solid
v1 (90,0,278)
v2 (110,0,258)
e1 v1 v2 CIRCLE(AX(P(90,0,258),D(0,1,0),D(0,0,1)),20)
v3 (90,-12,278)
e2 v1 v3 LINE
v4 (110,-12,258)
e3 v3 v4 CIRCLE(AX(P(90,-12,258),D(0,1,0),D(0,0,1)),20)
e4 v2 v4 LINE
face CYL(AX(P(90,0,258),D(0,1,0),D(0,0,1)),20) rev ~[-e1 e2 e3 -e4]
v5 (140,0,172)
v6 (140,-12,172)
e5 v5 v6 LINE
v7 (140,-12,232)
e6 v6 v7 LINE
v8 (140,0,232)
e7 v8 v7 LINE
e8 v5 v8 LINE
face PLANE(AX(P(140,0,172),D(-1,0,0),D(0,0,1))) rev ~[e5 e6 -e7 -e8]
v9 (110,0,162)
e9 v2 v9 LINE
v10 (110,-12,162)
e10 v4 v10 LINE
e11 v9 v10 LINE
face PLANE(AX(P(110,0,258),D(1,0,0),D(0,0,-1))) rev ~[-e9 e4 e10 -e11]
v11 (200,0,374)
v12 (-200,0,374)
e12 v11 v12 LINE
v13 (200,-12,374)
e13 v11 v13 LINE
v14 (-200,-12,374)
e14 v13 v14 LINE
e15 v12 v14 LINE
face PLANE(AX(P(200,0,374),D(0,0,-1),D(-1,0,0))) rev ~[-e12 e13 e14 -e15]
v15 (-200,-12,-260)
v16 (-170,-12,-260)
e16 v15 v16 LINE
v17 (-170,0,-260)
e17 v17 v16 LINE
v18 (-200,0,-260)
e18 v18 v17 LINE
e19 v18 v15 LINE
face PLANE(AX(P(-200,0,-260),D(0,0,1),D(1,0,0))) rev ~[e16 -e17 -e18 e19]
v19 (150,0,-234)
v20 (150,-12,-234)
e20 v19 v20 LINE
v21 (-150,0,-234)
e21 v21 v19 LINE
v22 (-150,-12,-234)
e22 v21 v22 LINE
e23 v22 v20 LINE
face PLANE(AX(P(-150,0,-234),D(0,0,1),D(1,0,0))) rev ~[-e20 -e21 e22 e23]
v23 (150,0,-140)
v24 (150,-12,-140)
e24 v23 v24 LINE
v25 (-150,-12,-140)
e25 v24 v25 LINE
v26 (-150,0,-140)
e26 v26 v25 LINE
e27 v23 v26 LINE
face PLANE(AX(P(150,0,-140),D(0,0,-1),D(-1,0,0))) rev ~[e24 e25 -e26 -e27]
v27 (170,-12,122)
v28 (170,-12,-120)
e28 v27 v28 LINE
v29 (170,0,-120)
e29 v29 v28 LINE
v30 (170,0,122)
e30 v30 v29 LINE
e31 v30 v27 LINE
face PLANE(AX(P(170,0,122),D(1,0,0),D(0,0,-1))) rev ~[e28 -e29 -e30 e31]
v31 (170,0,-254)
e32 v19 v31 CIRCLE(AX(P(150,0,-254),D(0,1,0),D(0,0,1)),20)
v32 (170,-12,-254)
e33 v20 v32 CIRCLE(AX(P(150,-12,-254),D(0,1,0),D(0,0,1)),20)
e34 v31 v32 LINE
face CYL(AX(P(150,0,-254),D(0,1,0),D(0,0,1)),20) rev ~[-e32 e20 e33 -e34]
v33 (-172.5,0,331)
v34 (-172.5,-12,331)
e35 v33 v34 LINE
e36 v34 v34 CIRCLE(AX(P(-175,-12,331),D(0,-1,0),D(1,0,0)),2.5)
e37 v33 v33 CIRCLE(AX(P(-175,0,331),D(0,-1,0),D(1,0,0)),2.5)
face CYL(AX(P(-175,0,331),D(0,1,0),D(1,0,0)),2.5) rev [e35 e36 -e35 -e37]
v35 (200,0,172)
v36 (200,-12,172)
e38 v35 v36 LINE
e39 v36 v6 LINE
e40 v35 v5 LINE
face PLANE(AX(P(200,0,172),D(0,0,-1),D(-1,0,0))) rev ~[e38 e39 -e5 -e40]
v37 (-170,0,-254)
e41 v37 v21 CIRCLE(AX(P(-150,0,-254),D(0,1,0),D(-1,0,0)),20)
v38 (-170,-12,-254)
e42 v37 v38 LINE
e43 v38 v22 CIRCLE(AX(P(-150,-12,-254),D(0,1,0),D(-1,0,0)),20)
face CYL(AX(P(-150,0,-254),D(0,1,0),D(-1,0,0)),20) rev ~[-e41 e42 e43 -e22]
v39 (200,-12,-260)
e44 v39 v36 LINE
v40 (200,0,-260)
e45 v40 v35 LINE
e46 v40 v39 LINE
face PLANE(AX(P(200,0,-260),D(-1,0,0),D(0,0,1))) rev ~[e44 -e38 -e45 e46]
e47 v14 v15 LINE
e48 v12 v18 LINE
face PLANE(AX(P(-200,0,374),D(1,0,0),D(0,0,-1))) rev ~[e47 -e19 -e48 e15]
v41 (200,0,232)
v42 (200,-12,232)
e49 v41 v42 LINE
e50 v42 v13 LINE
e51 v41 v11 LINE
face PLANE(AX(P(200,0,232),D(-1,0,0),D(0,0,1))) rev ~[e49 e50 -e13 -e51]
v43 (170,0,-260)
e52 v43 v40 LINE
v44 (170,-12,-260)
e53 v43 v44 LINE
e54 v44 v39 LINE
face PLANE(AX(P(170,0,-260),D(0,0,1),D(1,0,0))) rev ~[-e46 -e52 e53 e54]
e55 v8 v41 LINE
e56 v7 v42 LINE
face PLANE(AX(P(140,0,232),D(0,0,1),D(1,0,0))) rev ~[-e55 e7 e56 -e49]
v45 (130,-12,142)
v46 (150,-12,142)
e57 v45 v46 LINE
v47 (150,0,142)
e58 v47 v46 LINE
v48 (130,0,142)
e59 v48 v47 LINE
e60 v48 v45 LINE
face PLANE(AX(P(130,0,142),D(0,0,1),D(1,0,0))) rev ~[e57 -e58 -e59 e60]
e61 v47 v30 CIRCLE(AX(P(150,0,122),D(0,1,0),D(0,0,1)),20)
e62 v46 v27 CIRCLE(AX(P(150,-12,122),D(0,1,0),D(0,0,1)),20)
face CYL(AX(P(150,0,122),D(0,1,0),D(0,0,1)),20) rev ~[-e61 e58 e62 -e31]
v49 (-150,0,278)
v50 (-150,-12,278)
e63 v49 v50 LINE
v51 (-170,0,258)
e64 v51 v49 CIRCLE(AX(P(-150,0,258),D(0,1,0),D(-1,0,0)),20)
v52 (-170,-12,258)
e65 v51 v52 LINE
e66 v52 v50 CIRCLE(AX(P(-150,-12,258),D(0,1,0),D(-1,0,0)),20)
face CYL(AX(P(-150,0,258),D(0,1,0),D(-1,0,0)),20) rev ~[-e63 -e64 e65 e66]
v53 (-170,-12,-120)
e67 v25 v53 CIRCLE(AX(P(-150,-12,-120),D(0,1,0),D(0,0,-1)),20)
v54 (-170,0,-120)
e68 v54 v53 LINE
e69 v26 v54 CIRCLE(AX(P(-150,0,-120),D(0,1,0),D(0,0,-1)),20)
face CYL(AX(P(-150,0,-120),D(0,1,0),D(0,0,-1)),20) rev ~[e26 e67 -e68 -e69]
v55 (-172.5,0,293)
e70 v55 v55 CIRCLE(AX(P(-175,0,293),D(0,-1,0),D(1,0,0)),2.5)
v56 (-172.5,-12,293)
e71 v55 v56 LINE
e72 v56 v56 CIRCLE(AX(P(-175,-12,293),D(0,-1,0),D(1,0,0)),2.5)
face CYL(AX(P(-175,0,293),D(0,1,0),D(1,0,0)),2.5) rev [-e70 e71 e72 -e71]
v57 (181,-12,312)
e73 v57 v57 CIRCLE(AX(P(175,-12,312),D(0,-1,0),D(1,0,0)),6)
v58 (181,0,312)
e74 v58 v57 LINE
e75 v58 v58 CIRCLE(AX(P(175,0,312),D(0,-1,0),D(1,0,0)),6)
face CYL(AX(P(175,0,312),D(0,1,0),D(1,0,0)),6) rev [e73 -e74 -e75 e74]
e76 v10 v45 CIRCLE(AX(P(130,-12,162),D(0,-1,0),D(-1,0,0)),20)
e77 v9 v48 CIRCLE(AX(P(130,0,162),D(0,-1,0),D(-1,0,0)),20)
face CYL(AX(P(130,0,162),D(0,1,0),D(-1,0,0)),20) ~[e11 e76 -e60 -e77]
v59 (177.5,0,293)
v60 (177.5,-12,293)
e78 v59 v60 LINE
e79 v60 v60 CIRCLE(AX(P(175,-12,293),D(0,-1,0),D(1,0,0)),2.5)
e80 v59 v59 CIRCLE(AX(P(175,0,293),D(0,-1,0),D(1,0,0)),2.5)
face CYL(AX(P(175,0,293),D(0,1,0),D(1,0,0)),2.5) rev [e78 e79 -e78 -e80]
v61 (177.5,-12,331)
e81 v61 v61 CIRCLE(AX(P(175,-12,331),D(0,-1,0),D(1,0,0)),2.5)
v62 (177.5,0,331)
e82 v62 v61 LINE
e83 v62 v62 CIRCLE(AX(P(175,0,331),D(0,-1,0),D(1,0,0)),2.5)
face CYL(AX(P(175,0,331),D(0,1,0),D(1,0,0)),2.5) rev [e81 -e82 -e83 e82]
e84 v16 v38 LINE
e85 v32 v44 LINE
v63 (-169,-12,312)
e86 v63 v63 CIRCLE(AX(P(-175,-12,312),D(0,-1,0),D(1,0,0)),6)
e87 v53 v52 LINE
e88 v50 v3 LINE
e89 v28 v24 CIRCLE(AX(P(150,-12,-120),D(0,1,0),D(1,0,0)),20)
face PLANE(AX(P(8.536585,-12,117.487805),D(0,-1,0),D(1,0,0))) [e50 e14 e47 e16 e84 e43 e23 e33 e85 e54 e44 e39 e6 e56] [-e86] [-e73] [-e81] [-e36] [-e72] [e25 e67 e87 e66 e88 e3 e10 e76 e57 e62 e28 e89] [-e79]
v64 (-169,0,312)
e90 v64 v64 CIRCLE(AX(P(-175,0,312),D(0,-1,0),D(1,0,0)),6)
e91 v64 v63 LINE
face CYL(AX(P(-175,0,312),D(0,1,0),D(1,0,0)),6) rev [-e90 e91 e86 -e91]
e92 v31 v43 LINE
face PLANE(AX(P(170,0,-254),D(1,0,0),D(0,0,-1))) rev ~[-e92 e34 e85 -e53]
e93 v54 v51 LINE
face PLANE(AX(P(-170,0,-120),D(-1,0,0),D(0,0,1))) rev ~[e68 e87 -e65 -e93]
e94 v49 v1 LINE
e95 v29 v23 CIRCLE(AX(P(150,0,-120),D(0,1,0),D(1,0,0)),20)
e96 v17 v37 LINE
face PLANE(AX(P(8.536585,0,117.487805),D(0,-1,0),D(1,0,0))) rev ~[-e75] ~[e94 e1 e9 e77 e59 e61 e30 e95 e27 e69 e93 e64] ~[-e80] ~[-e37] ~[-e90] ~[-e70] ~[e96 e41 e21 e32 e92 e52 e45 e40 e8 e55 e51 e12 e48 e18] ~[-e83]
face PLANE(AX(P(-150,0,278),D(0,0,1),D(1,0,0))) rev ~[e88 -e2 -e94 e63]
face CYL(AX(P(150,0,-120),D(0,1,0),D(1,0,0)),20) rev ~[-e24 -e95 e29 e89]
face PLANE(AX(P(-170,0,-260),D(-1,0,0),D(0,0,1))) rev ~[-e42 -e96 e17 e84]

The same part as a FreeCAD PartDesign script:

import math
import FreeCAD as App
import Part
import Sketcher

doc = App.newDocument("Part")
params = doc.addObject("Spreadsheet::Sheet", "Params")
for row, (alias, value) in enumerate([
    ("sketch1_diameter", "5 mm"),
    ("sketch1_diameter2", "12 mm"),
    ("sketch1_radius", "20 mm"),
    ("sketch1_width", "400 mm"),
    ("sketch1_width2", "30 mm"),
    ("pad1_length", "12 mm"),
], start=1):
    params.set(f"A{row}", alias)
    params.set(f"B{row}", "=" + value)
    params.setAlias(f"B{row}", alias)

body = doc.addObject("PartDesign::Body", "Body")

sketch1 = body.newObject("Sketcher::SketchObject", "Sketch")
sketch1.AttachmentSupport = (doc.getObject("XZ_Plane"), [""])
sketch1.MapMode = "FlatFace"
sketch1.addGeometry([
    Part.LineSegment(App.Vector(200, 232, 0), App.Vector(200, 374, 0)),
    Part.LineSegment(App.Vector(200, 374, 0), App.Vector(-200, 374, 0)),
    Part.LineSegment(App.Vector(-200, 374, 0), App.Vector(-200, -260, 0)),
    Part.LineSegment(App.Vector(-200, -260, 0), App.Vector(-170, -260, 0)),
    Part.LineSegment(App.Vector(-170, -260, 0), App.Vector(-170, -254, 0)),
    Part.ArcOfCircle(Part.Circle(App.Vector(-150, -254, 0), App.Vector(0, 0, 1), 20), math.radians(90), math.radians(180)),
    Part.LineSegment(App.Vector(-150, -234, 0), App.Vector(150, -234, 0)),
    Part.ArcOfCircle(Part.Circle(App.Vector(150, -254, 0), App.Vector(0, 0, 1), 20), math.radians(0), math.radians(90)),
    Part.LineSegment(App.Vector(170, -254, 0), App.Vector(170, -260, 0)),
    Part.LineSegment(App.Vector(170, -260, 0), App.Vector(200, -260, 0)),
    Part.LineSegment(App.Vector(200, -260, 0), App.Vector(200, 172, 0)),
    Part.LineSegment(App.Vector(200, 172, 0), App.Vector(140, 172, 0)),
    Part.LineSegment(App.Vector(140, 172, 0), App.Vector(140, 232, 0)),
    Part.LineSegment(App.Vector(140, 232, 0), App.Vector(200, 232, 0)),
    Part.ArcOfCircle(Part.Circle(App.Vector(-150, 258, 0), App.Vector(0, 0, 1), 20), math.radians(90), math.radians(180)),
    Part.LineSegment(App.Vector(-150, 278, 0), App.Vector(90, 278, 0)),
    Part.ArcOfCircle(Part.Circle(App.Vector(90, 258, 0), App.Vector(0, 0, 1), 20), math.radians(0), math.radians(90)),
    Part.LineSegment(App.Vector(110, 258, 0), App.Vector(110, 162, 0)),
    Part.ArcOfCircle(Part.Circle(App.Vector(130, 162, 0), App.Vector(0, 0, 1), 20), math.radians(180), math.radians(270)),
    Part.LineSegment(App.Vector(130, 142, 0), App.Vector(150, 142, 0)),
    Part.ArcOfCircle(Part.Circle(App.Vector(150, 122, 0), App.Vector(0, 0, 1), 20), math.radians(0), math.radians(90)),
    Part.LineSegment(App.Vector(170, 122, 0), App.Vector(170, -120, 0)),
    Part.ArcOfCircle(Part.Circle(App.Vector(150, -120, 0), App.Vector(0, 0, 1), 20), math.radians(-90), math.radians(0)),
    Part.LineSegment(App.Vector(150, -140, 0), App.Vector(-150, -140, 0)),
    Part.ArcOfCircle(Part.Circle(App.Vector(-150, -120, 0), App.Vector(0, 0, 1), 20), math.radians(180), math.radians(270)),
    Part.LineSegment(App.Vector(-170, -120, 0), App.Vector(-170, 258, 0)),
    Part.Circle(App.Vector(-175, 293, 0), App.Vector(0, 0, 1), 2.5),
    Part.Circle(App.Vector(-175, 312, 0), App.Vector(0, 0, 1), 6),
    Part.Circle(App.Vector(-175, 331, 0), App.Vector(0, 0, 1), 2.5),
    Part.Circle(App.Vector(175, 293, 0), App.Vector(0, 0, 1), 2.5),
    Part.Circle(App.Vector(175, 312, 0), App.Vector(0, 0, 1), 6),
    Part.Circle(App.Vector(175, 331, 0), App.Vector(0, 0, 1), 2.5),
], False)
sketch1.addConstraint([
    Sketcher.Constraint("Coincident", 0, 2, 1, 1),
    Sketcher.Constraint("Coincident", 1, 2, 2, 1),
    Sketcher.Constraint("Coincident", 2, 2, 3, 1),
    Sketcher.Constraint("Coincident", 3, 2, 4, 1),
    Sketcher.Constraint("Tangent", 4, 2, 5, 2),
    Sketcher.Constraint("Tangent", 5, 1, 6, 1),
    Sketcher.Constraint("Tangent", 6, 2, 7, 2),
    Sketcher.Constraint("Tangent", 7, 1, 8, 1),
    Sketcher.Constraint("Coincident", 8, 2, 9, 1),
    Sketcher.Constraint("Coincident", 9, 2, 10, 1),
    Sketcher.Constraint("Coincident", 10, 2, 11, 1),
    Sketcher.Constraint("Coincident", 11, 2, 12, 1),
    Sketcher.Constraint("Coincident", 12, 2, 13, 1),
    Sketcher.Constraint("Coincident", 13, 2, 0, 1),
    Sketcher.Constraint("Tangent", 14, 1, 15, 1),
    Sketcher.Constraint("Tangent", 15, 2, 16, 2),
    Sketcher.Constraint("Tangent", 16, 1, 17, 1),
    Sketcher.Constraint("Tangent", 17, 2, 18, 1),
    Sketcher.Constraint("Tangent", 18, 2, 19, 1),
    Sketcher.Constraint("Tangent", 19, 2, 20, 2),
    Sketcher.Constraint("Tangent", 20, 1, 21, 1),
    Sketcher.Constraint("Tangent", 21, 2, 22, 2),
    Sketcher.Constraint("Tangent", 22, 1, 23, 1),
    Sketcher.Constraint("Tangent", 23, 2, 24, 2),
    Sketcher.Constraint("Tangent", 24, 1, 25, 1),
    Sketcher.Constraint("Tangent", 25, 2, 14, 2),
    Sketcher.Constraint("Vertical", 0),
    Sketcher.Constraint("Horizontal", 1),
    Sketcher.Constraint("Vertical", 2),
    Sketcher.Constraint("Horizontal", 3),
    Sketcher.Constraint("Vertical", 4),
    Sketcher.Constraint("Horizontal", 6),
    Sketcher.Constraint("Vertical", 8),
    Sketcher.Constraint("Horizontal", 9),
    Sketcher.Constraint("Vertical", 10),
    Sketcher.Constraint("Horizontal", 11),
    Sketcher.Constraint("Vertical", 12),
    Sketcher.Constraint("Horizontal", 13),
    Sketcher.Constraint("Horizontal", 15),
    Sketcher.Constraint("Vertical", 17),
    Sketcher.Constraint("Horizontal", 19),
    Sketcher.Constraint("Vertical", 21),
    Sketcher.Constraint("Horizontal", 23),
    Sketcher.Constraint("Vertical", 25),
    Sketcher.Constraint("Equal", 5, 7),
    Sketcher.Constraint("Equal", 7, 14),
    Sketcher.Constraint("Equal", 14, 16),
    Sketcher.Constraint("Equal", 16, 18),
    Sketcher.Constraint("Equal", 18, 20),
    Sketcher.Constraint("Equal", 20, 22),
    Sketcher.Constraint("Equal", 22, 24),
    Sketcher.Constraint("Equal", 26, 28),
    Sketcher.Constraint("Equal", 28, 29),
    Sketcher.Constraint("Equal", 27, 30),
    Sketcher.Constraint("Equal", 29, 31),
    Sketcher.Constraint("Symmetric", 26, 3, 29, 3, -2),
    Sketcher.Constraint("Symmetric", 27, 3, 30, 3, -2),
    Sketcher.Constraint("Symmetric", 28, 3, 31, 3, -2),
    Sketcher.Constraint("Symmetric", 3, 2, 8, 2, -2),
    Sketcher.Constraint("Vertical", 5, 3, 14, 3),
    Sketcher.Constraint("Vertical", 7, 3, 20, 3),
    Sketcher.Constraint("Vertical", 26, 3, 27, 3),
    Sketcher.Constraint("Vertical", 27, 3, 28, 3),
    Sketcher.Constraint("Vertical", 0, 2, 9, 2),
    Sketcher.Constraint("Equal", 3, 9),
    Sketcher.Constraint("Equal", 13, 12),
    Sketcher.Constraint("Diameter", 26, 5.0),
    Sketcher.Constraint("Diameter", 27, 12.0),
    Sketcher.Constraint("Radius", 5, 20.0),
    Sketcher.Constraint("DistanceX", 1, 2, 1, 1, 400.0),
    Sketcher.Constraint("DistanceX", 3, 1, 3, 2, 30.0),
    Sketcher.Constraint("DistanceX", 11, 2, 11, 1, 60.0),
    Sketcher.Constraint("DistanceX", 15, 1, 15, 2, 240.0),
    Sketcher.Constraint("DistanceY", 0, 1, 0, 2, 142.0),
    Sketcher.Constraint("DistanceY", 2, 2, 2, 1, 634.0),
    Sketcher.Constraint("DistanceY", 4, 1, 4, 2, 6.0),
    Sketcher.Constraint("DistanceY", 17, 2, 17, 1, 96.0),
    Sketcher.Constraint("DistanceY", 21, 2, 21, 1, 242.0),
    Sketcher.Constraint("DistanceY", 5, 3, -1, 1, 254.0),
    Sketcher.Constraint("DistanceY", -1, 1, 14, 3, 258.0),
    Sketcher.Constraint("DistanceX", 26, 3, -1, 1, 175.0),
    Sketcher.Constraint("DistanceY", -1, 1, 26, 3, 293.0),
    Sketcher.Constraint("DistanceY", -1, 1, 27, 3, 312.0),
    Sketcher.Constraint("DistanceY", -1, 1, 28, 3, 331.0),
])
sketch1.setExpression("Constraints[66]", "Params.sketch1_diameter")
sketch1.setExpression("Constraints[67]", "Params.sketch1_diameter2")
sketch1.setExpression("Constraints[68]", "Params.sketch1_radius")
sketch1.setExpression("Constraints[69]", "Params.sketch1_width")
sketch1.setExpression("Constraints[70]", "Params.sketch1_width2")
pad1 = body.newObject("PartDesign::Pad", "Pad")
pad1.Profile = sketch1
pad1.setExpression("Length", "Params.pad1_length")

doc.recompute()
